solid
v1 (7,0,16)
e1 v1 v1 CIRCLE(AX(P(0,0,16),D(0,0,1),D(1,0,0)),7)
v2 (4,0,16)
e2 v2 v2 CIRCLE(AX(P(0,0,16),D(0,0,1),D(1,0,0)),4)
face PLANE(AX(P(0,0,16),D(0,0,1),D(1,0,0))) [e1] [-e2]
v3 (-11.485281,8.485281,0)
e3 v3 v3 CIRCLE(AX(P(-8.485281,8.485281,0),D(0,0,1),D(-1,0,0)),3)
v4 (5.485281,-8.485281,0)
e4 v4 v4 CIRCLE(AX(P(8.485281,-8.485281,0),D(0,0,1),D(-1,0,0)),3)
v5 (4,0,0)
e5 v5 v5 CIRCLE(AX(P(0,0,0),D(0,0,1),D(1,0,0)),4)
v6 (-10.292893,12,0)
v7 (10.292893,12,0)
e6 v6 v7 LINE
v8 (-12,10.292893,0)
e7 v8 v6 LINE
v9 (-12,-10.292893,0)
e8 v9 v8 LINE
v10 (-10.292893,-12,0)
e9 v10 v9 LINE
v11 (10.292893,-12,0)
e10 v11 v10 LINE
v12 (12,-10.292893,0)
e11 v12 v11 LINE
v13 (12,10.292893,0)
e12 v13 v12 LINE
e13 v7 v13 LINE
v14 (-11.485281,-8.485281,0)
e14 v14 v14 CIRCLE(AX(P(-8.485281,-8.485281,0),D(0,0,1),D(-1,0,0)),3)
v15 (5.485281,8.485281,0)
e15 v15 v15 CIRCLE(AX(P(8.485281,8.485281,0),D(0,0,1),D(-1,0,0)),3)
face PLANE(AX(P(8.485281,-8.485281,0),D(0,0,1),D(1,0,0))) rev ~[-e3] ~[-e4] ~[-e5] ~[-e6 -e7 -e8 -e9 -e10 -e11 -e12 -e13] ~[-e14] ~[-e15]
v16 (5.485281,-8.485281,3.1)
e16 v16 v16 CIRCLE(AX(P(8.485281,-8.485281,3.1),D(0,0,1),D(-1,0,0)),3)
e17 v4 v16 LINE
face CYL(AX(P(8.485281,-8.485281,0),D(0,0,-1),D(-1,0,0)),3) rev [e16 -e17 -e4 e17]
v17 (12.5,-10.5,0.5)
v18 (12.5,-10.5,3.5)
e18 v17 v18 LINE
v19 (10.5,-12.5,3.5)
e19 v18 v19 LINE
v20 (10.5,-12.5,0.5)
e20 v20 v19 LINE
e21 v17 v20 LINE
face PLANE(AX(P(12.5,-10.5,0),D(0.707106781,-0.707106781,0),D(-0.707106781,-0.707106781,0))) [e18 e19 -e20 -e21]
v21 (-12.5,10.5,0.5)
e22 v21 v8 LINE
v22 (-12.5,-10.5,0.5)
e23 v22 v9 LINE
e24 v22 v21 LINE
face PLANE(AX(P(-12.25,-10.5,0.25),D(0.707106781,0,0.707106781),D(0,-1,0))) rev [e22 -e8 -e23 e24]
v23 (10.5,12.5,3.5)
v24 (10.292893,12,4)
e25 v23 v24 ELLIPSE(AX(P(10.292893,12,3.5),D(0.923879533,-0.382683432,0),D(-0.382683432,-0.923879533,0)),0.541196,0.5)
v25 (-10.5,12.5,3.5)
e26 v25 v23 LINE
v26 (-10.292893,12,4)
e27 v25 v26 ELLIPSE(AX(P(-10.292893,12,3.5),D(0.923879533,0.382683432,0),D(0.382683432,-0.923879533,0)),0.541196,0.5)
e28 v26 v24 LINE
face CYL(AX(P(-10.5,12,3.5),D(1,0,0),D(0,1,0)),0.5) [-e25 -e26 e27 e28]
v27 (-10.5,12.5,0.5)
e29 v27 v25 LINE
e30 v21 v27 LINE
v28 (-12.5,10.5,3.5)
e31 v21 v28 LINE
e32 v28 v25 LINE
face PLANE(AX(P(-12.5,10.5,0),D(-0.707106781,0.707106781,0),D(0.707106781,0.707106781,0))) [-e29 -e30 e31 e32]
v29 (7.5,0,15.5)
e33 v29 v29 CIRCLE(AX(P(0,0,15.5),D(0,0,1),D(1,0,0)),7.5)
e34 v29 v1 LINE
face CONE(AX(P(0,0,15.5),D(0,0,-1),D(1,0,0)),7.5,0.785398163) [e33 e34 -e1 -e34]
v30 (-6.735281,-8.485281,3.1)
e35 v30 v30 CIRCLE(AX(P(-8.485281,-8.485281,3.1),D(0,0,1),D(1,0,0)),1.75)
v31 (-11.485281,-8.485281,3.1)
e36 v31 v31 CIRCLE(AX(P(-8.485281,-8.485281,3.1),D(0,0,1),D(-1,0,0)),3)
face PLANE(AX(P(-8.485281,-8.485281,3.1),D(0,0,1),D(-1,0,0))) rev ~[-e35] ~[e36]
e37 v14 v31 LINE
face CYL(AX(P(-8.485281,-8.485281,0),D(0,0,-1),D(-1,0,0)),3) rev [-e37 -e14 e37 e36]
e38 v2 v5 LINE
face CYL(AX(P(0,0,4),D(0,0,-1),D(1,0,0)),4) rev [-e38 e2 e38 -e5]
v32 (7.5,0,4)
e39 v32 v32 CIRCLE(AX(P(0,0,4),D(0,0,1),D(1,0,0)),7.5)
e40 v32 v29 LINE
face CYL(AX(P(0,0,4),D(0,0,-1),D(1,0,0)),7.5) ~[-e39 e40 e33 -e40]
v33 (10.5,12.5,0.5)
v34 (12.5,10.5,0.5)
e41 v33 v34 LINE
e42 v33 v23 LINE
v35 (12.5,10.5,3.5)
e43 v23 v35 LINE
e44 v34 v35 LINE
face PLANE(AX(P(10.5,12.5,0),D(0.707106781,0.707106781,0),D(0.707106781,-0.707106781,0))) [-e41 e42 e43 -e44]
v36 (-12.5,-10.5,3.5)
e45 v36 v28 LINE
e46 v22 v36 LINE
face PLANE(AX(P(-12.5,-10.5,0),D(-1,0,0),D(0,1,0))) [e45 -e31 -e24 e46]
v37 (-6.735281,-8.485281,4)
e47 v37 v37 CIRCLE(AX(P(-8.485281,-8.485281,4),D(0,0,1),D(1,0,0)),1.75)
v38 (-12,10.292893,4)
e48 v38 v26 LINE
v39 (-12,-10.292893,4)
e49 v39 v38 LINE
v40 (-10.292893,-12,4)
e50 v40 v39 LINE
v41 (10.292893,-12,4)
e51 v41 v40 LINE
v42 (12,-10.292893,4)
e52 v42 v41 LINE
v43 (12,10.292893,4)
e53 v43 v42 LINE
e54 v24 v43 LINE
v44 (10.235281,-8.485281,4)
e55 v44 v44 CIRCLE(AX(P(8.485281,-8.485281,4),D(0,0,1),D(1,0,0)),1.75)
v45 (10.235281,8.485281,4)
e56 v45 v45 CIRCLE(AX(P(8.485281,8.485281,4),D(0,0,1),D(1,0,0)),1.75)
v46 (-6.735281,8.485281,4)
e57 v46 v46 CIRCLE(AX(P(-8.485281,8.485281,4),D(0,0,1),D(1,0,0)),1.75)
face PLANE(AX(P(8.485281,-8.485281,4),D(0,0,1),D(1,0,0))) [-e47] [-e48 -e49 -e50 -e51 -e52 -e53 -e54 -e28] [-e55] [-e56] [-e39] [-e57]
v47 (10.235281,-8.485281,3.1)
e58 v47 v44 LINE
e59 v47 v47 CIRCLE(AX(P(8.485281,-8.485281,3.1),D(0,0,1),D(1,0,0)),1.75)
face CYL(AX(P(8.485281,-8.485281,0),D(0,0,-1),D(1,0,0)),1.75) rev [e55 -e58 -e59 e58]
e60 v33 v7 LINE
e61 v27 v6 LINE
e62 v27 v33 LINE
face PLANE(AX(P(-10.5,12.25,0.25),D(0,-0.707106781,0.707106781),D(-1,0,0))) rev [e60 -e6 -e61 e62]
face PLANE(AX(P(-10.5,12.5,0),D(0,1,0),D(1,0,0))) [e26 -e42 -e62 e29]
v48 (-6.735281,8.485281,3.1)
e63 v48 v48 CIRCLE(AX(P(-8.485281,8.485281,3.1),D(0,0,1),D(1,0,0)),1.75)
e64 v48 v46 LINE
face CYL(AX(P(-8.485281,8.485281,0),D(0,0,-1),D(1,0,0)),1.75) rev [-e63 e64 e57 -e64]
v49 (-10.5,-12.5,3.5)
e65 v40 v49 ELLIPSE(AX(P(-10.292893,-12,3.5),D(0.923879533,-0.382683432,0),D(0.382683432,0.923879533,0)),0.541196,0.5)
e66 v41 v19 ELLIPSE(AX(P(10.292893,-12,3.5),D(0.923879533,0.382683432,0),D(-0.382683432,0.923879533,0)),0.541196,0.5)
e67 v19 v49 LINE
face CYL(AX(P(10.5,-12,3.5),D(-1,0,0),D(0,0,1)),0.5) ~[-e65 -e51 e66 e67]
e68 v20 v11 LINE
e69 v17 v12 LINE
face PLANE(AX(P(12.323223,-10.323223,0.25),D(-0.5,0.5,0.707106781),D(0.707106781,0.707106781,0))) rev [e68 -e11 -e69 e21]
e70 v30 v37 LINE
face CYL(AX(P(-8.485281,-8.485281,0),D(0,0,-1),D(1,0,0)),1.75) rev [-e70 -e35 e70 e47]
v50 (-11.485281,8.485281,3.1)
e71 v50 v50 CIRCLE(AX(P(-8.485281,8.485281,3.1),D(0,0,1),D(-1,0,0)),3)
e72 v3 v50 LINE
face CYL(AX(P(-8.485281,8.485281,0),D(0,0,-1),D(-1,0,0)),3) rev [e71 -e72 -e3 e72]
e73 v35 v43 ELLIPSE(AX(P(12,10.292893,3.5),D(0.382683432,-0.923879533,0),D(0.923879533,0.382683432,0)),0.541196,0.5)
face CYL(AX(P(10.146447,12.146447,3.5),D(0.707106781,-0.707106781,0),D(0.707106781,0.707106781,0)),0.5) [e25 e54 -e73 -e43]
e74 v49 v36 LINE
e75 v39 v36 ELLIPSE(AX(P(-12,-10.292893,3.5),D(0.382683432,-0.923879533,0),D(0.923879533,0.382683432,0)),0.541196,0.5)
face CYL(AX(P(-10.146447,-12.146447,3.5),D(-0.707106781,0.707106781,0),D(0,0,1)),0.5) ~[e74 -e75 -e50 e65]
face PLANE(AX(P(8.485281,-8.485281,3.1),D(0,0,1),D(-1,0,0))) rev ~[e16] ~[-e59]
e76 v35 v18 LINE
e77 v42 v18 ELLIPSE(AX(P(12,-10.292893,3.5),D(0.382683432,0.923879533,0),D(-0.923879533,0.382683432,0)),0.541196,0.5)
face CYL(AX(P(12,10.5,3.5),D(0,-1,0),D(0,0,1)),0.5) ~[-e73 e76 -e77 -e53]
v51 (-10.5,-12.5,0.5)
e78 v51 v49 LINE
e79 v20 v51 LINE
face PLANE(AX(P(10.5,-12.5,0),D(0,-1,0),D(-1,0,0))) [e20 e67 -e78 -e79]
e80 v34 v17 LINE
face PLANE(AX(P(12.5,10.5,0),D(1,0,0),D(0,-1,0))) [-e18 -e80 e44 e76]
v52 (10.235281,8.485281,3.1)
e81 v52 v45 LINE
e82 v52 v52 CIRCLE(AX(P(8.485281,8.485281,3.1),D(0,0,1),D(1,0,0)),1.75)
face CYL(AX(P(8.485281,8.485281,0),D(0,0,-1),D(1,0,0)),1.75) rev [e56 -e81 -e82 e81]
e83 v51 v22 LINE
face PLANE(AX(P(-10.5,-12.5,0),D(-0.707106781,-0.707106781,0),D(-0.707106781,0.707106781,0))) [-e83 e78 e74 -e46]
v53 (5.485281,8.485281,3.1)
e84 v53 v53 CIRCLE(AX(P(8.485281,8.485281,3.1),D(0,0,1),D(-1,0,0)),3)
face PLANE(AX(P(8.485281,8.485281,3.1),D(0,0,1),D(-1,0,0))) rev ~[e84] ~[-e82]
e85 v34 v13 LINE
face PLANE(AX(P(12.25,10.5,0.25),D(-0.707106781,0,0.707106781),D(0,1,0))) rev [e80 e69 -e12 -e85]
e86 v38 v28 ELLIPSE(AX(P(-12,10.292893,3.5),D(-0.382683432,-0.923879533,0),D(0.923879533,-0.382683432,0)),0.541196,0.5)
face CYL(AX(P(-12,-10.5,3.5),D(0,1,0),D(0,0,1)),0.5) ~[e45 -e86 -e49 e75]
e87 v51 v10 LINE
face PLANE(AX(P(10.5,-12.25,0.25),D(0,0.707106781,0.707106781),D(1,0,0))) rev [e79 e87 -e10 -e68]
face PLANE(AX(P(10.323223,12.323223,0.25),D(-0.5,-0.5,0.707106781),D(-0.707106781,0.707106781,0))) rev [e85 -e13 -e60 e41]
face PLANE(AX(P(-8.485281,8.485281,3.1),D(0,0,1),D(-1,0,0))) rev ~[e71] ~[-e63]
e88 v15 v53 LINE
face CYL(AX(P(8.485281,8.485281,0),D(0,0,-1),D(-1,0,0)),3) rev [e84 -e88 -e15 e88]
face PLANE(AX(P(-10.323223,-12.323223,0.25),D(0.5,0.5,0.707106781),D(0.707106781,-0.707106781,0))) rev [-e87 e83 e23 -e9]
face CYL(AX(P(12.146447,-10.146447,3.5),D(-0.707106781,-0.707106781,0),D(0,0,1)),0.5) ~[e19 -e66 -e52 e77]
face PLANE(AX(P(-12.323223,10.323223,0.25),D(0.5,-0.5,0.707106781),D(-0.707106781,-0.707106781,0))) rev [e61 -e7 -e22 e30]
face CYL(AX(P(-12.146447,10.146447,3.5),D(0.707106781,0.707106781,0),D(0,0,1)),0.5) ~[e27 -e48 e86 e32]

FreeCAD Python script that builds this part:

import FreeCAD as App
import Part
import Sketcher

V = App.Vector
Q = App.Units.Quantity


def edges_at(feature, points):
    """Names of the edges that pass closest to the given points."""
    edges = feature.Shape.Edges
    near = lambda p: min(range(len(edges)), key=lambda i: edges[i].distToShape(Part.Vertex(*p))[0])
    return sorted({f"Edge{near(p) + 1}" for p in points})

doc = App.newDocument("Part")
body = doc.addObject("PartDesign::Body", "Body")

# Sketch on XY plane
sketch1 = body.newObject("Sketcher::SketchObject", "Sketch")
sketch1.AttachmentSupport = (doc.getObject("XY_Plane"), [""])
sketch1.MapMode = "FlatFace"
sketch1.addGeometry([
    Part.LineSegment(V(12.5, 10.5, 0), V(10.5, 12.5, 0)),  # 0
    Part.LineSegment(V(10.5, 12.5, 0), V(-10.5, 12.5, 0)),  # 1
    Part.LineSegment(V(-10.5, 12.5, 0), V(-12.5, 10.5, 0)),  # 2
    Part.LineSegment(V(-12.5, 10.5, 0), V(-12.5, -10.5, 0)),  # 3
    Part.LineSegment(V(-12.5, -10.5, 0), V(-10.5, -12.5, 0)),  # 4
    Part.LineSegment(V(-10.5, -12.5, 0), V(10.5, -12.5, 0)),  # 5
    Part.LineSegment(V(10.5, -12.5, 0), V(12.5, -10.5, 0)),  # 6
    Part.LineSegment(V(12.5, -10.5, 0), V(12.5, 10.5, 0)),  # 7
    Part.Circle(V(0, 0, 0), V(0, 0, 1), 4),  # 8
    Part.Circle(V(8.485281, -8.485281, 0), V(0, 0, 1), 1.75),  # 9
    Part.Circle(V(-8.485281, -8.485281, 0), V(0, 0, 1), 1.75),  # 10
    Part.Circle(V(8.485281, 8.485281, 0), V(0, 0, 1), 1.75),  # 11
    Part.Circle(V(-8.485281, 8.485281, 0), V(0, 0, 1), 1.75),  # 12
], False)
sketch1.addConstraint([
    Sketcher.Constraint("Coincident", 0, 2, 1, 1),
    Sketcher.Constraint("Coincident", 1, 2, 2, 1),
    Sketcher.Constraint("Coincident", 2, 2, 3, 1),
    Sketcher.Constraint("Coincident", 3, 2, 4, 1),
    Sketcher.Constraint("Coincident", 4, 2, 5, 1),
    Sketcher.Constraint("Coincident", 5, 2, 6, 1),
    Sketcher.Constraint("Coincident", 6, 2, 7, 1),
    Sketcher.Constraint("Coincident", 7, 2, 0, 1),
    Sketcher.Constraint("Horizontal", 1),
    Sketcher.Constraint("Vertical", 3),
    Sketcher.Constraint("Horizontal", 5),
    Sketcher.Constraint("Vertical", 7),
    Sketcher.Constraint("Coincident", 8, 3, -1, 1),
    Sketcher.Constraint("Equal", 9, 10),
    Sketcher.Constraint("Equal", 10, 11),
    Sketcher.Constraint("Equal", 11, 12),
    Sketcher.Constraint("Symmetric", 10, 3, 11, 3, -1, 1),
    Sketcher.Constraint("Symmetric", 9, 3, 12, 3, -1, 1),
    Sketcher.Constraint("Symmetric", 0, 2, 4, 2, -1, 1),
    Sketcher.Constraint("Symmetric", 2, 2, 6, 2, -1, 1),
    Sketcher.Constraint("Symmetric", 9, 3, 10, 3, -2),
    Sketcher.Constraint("Perpendicular", 0, 2),
    Sketcher.Constraint("Perpendicular", 2, 4),
    Sketcher.Constraint("Perpendicular", 4, 6),
    Sketcher.Constraint("Horizontal", 3, 2, 6, 2),
    Sketcher.Constraint("Vertical", 1, 2, 4, 2),
    Sketcher.Constraint("Equal", 5, 3),
    Sketcher.Constraint("Diameter", 8, Q("8 mm")),
    Sketcher.Constraint("Diameter", 9, Q("3.5 mm")),
    Sketcher.Constraint("DistanceX", 1, 2, 1, 1, Q("21 mm")),
    Sketcher.Constraint("DistanceX", 2, 2, 1, 2, Q("2 mm")),
    Sketcher.Constraint("DistanceX", -1, 1, 9, 3, Q("8.485281 mm")),
    Sketcher.Constraint("DistanceY", 9, 3, -1, 1, Q("8.485281 mm")),
])
pad1 = body.newObject("PartDesign::Pad", "Pad")
pad1.Profile = sketch1
pad1.Length = 4

# Sketch on XY plane
sketch2 = body.newObject("Sketcher::SketchObject", "Sketch001")
sketch2.AttachmentSupport = (doc.getObject("XY_Plane"), [""])
sketch2.MapMode = "FlatFace"
sketch2.addGeometry([
    Part.Circle(V(8.485281, -8.485281, 0), V(0, 0, 1), 3),  # 0
    Part.Circle(V(8.485281, -8.485281, 0), V(0, 0, 1), 1.75),  # 1
    Part.Circle(V(-8.485281, -8.485281, 0), V(0, 0, 1), 3),  # 2
    Part.Circle(V(-8.485281, -8.485281, 0), V(0, 0, 1), 1.75),  # 3
    Part.Circle(V(-8.485281, 8.485281, 0), V(0, 0, 1), 3),  # 4
    Part.Circle(V(-8.485281, 8.485281, 0), V(0, 0, 1), 1.75),  # 5
    Part.Circle(V(8.485281, 8.485281, 0), V(0, 0, 1), 3),  # 6
    Part.Circle(V(8.485281, 8.485281, 0), V(0, 0, 1), 1.75),  # 7
], False)
sketch2.addConstraint([
    Sketcher.Constraint("Coincident", 1, 3, 0, 3),
    Sketcher.Constraint("Coincident", 3, 3, 2, 3),
    Sketcher.Constraint("Coincident", 5, 3, 4, 3),
    Sketcher.Constraint("Coincident", 7, 3, 6, 3),
    Sketcher.Constraint("Equal", 0, 2),
    Sketcher.Constraint("Equal", 1, 3),
    Sketcher.Constraint("Equal", 2, 4),
    Sketcher.Constraint("Equal", 3, 5),
    Sketcher.Constraint("Equal", 4, 6),
    Sketcher.Constraint("Equal", 5, 7),
    Sketcher.Constraint("Symmetric", 0, 3, 4, 3, -1, 1),
    Sketcher.Constraint("Symmetric", 2, 3, 6, 3, -1, 1),
    Sketcher.Constraint("Symmetric", 0, 3, 2, 3, -2),
    Sketcher.Constraint("Diameter", 0, Q("6 mm")),
    Sketcher.Constraint("Diameter", 1, Q("3.5 mm")),
    Sketcher.Constraint("DistanceX", -1, 1, 0, 3, Q("8.485281 mm")),
    Sketcher.Constraint("DistanceY", 0, 3, -1, 1, Q("8.485281 mm")),
])
pocket1 = body.newObject("PartDesign::Pocket", "Pocket")
pocket1.Profile = sketch2
pocket1.Length = 3.1
pocket1.Reversed = True

# Sketch on XY plane
sketch3 = body.newObject("Sketcher::SketchObject", "Sketch002")
sketch3.AttachmentSupport = (doc.getObject("XY_Plane"), [""])
sketch3.MapMode = "FlatFace"
sketch3.AttachmentOffset = App.Placement(V(0, 0, 4), App.Rotation())
sketch3.addGeometry([
    Part.Circle(V(0, 0, 0), V(0, 0, 1), 7.5),
    Part.Circle(V(0, 0, 0), V(0, 0, 1), 4),
], False)
sketch3.addConstraint([
    Sketcher.Constraint("Coincident", 0, 3, -1, 1),
    Sketcher.Constraint("Coincident", 1, 3, -1, 1),
    Sketcher.Constraint("Diameter", 0, Q("15 mm")),
    Sketcher.Constraint("Diameter", 1, Q("8 mm")),
])
pad2 = body.newObject("PartDesign::Pad", "Pad001")
pad2.Profile = sketch3
pad2.Length = 12
doc.recompute()

chamfer = body.newObject("PartDesign::Chamfer", "Chamfer")
chamfer.Base = (pad2, edges_at(pad2, [(-7.5, 0, 16)]))
chamfer.Size = 0.5
doc.recompute()

chamfer2 = body.newObject("PartDesign::Chamfer", "Chamfer001")
chamfer2.Base = (chamfer, edges_at(chamfer, [
    (12.5, 0, 0),
    (11.5, -11.5, 0),
    (0, -12.5, 0),
    (-11.5, -11.5, 0),
    (-12.5, 0, 0),
    (-11.5, 11.5, 0),
    (0, 12.5, 0),
    (11.5, 11.5, 0),
]))
chamfer2.Size = 0.5
doc.recompute()

fillet = body.newObject("PartDesign::Fillet", "Fillet")
fillet.Base = (chamfer2, edges_at(chamfer2, [
    (11.5, 11.5, 4),
    (0, 12.5, 4),
    (-11.5, 11.5, 4),
    (-12.5, 0, 4),
    (-11.5, -11.5, 4),
    (0, -12.5, 4),
    (11.5, -11.5, 4),
    (12.5, 0, 4),
]))
fillet.Radius = 0.5

doc.recompute()
